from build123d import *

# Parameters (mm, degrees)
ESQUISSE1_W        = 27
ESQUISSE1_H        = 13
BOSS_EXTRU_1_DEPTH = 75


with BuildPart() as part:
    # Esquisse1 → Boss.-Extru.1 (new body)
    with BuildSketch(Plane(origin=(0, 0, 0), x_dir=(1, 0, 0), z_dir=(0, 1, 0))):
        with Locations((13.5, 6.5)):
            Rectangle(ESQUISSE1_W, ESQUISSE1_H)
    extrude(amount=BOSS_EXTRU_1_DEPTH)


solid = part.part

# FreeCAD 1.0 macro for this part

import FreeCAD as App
import Part
import Sketcher

V = App.Vector
Q = App.Units.Quantity


def add_polygon(sketch, points):
    """Adds a closed chain of lines whose ends are joined by coincident constraints."""
    first, n = sketch.GeometryCount, len(points)
    for a, b in zip(points, points[1:] + points[:1]):
        sketch.addGeometry(Part.LineSegment(App.Vector(*a, 0), App.Vector(*b, 0)), False)
    for i in range(n):
        sketch.addConstraint(Sketcher.Constraint("Coincident", first + i, 2, first + (i + 1) % n, 1))

doc = App.newDocument("Part")
params = doc.addObject("Spreadsheet::Sheet", "Params")
for row, (alias, value) in enumerate([
    ("sketch1_width", "27 mm"),
    ("sketch1_height", "13 mm"),
    ("pad1_length", "75 mm"),
], start=1):
    params.set(f"A{row}", alias)
    params.set(f"B{row}", "=" + value)
    params.setAlias(f"B{row}", alias)

body = doc.addObject("PartDesign::Body", "Body")

# Sketch on XZ plane
sketch1 = doc.addObject("Sketcher::SketchObject", "Sketch")
body.addObject(sketch1)
sketch1.AttachmentSupport = (doc.XZ_Plane, [""])
sketch1.MapMode = "FlatFace"
add_polygon(sketch1, [(0, -13), (0, 0), (27, 0), (27, -13)])  # lines 0-3
sketch1.addConstraint(Sketcher.Constraint("Vertical", 0))
sketch1.addConstraint(Sketcher.Constraint("Horizontal", 1))
sketch1.addConstraint(Sketcher.Constraint("Vertical", 2))
sketch1.addConstraint(Sketcher.Constraint("Horizontal", 3))
sketch1.addConstraint(Sketcher.Constraint("Coincident", 0, 2, -1, 1))
sketch1.addConstraint(Sketcher.Constraint("DistanceX", 1, 1, 1, 2, Q("27 mm")))
sketch1.addConstraint(Sketcher.Constraint("DistanceY", 0, 1, 0, 2, Q("13 mm")))
sketch1.setExpression("Constraints[9]", "Params.sketch1_width")
sketch1.setExpression("Constraints[10]", "Params.sketch1_height")
pad1 = doc.addObject("PartDesign::Pad", "Pad")
body.addObject(pad1)
pad1.Profile = sketch1
pad1.setExpression("Length", "Params.pad1_length")
pad1.Reversed = True

doc.recompute()
